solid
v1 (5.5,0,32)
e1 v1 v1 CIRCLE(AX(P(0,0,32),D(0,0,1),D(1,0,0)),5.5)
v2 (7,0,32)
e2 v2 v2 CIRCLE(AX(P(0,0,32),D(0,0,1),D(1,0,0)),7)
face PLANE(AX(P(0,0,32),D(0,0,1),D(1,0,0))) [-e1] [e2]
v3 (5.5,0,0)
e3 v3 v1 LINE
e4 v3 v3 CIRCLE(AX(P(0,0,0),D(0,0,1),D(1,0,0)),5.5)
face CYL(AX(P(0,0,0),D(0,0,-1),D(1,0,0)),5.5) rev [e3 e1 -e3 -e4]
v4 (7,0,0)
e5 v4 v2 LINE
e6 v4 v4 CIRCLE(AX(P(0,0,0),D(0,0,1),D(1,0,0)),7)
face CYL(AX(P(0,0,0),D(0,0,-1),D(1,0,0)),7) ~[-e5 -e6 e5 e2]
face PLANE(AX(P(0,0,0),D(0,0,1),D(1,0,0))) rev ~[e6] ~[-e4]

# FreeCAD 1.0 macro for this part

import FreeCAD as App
import Part
import Sketcher

V = App.Vector

doc = App.newDocument("Part")
params = doc.addObject("Spreadsheet::Sheet", "Params")
for row, (alias, value) in enumerate([
    ("sketch1_diameter", "14 mm"),
    ("sketch1_diameter2", "11 mm"),
    ("pad1_length", "32 mm"),
], start=1):
    params.set(f"A{row}", alias)
    params.set(f"B{row}", "=" + value)
    params.setAlias(f"B{row}", alias)

body = doc.addObject("PartDesign::Body", "Body")

sketch1 = body.newObject("Sketcher::SketchObject", "Sketch")
sketch1.AttachmentSupport = (doc.getObject("XY_Plane"), [""])
sketch1.MapMode = "FlatFace"
sketch1.addGeometry(Part.Circle(V(0, 0, 0), V(0, 0, 1), 7), False)
sketch1.addGeometry(Part.Circle(V(0, 0, 0), V(0, 0, 1), 6), False)
sketch1.addConstraint(Sketcher.Constraint("Coincident", 0, 3, -1, 1))
sketch1.addConstraint(Sketcher.Constraint("Coincident", 1, 3, -1, 1))
sketch1.addConstraint(Sketcher.Constraint("Diameter", 0, 14.0))
sketch1.addConstraint(Sketcher.Constraint("Diameter", 1, 11.0))
sketch1.setExpression("Constraints[2]", "Params.sketch1_diameter")
sketch1.setExpression("Constraints[3]", "Params.sketch1_diameter2")
pad1 = body.newObject("PartDesign::Pad", "Pad")
pad1.Profile = sketch1
pad1.setExpression("Length", "Params.pad1_length")

doc.recompute()
